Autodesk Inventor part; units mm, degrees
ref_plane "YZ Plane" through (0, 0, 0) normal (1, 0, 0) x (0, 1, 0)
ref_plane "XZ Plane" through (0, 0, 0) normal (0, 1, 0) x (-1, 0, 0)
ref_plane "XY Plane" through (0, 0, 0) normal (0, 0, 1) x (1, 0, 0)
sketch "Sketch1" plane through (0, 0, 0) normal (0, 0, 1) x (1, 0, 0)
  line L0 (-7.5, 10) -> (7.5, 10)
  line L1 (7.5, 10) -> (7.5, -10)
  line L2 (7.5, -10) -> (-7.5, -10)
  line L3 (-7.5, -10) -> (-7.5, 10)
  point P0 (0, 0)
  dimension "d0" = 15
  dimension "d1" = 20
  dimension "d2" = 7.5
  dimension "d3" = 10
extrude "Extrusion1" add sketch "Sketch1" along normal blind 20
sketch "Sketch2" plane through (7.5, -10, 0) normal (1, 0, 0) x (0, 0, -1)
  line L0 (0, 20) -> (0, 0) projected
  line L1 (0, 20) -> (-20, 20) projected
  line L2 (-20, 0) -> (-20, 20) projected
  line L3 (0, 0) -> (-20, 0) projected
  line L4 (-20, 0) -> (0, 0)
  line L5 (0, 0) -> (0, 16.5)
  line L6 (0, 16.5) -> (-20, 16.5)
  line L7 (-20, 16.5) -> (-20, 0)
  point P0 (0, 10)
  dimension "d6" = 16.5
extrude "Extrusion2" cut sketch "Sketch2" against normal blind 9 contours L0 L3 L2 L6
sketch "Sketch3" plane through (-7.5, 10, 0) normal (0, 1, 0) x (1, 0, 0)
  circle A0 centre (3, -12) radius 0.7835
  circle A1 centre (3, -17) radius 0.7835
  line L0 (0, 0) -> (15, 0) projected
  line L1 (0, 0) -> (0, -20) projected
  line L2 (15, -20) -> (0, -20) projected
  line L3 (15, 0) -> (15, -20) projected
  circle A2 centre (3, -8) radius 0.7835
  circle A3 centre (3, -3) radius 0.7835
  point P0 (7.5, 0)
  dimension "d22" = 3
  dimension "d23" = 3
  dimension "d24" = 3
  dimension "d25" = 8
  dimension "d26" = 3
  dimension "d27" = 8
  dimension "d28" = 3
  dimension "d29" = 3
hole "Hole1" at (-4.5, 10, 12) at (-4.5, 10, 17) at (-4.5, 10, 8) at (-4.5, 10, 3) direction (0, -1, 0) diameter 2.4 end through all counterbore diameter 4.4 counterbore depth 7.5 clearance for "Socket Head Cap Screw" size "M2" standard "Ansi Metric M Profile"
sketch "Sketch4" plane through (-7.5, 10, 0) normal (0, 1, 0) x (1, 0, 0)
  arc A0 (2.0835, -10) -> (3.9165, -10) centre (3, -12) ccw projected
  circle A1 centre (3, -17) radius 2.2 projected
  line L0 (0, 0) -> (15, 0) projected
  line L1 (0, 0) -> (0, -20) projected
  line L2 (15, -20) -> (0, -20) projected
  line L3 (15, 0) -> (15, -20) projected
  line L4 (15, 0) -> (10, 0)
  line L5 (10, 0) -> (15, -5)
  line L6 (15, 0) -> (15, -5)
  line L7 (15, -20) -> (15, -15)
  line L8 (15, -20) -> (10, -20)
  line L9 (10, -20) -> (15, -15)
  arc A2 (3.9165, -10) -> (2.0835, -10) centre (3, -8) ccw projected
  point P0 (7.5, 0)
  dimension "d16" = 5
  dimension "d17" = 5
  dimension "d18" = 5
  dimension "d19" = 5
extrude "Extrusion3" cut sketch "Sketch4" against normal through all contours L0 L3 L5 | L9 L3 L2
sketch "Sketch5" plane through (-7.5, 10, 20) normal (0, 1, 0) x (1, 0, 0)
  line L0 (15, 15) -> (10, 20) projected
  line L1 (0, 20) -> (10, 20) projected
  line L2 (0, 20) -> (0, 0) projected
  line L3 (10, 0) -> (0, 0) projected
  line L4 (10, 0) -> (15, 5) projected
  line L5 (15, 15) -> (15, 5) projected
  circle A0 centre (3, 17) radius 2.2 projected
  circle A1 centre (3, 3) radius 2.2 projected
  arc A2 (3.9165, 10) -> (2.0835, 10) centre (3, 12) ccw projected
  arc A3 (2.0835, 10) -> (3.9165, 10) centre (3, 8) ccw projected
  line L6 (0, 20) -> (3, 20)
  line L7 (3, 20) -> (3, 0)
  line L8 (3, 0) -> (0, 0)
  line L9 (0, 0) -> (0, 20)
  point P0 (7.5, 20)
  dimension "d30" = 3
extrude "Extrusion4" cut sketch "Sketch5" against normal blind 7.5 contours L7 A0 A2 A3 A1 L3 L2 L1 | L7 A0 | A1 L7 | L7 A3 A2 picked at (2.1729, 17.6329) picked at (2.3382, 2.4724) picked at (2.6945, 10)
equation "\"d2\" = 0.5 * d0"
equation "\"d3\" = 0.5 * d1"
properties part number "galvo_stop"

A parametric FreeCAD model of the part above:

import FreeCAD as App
import Part
import Sketcher
from FreeCAD import Vector

doc = App.newDocument("Part")
body = doc.addObject("PartDesign::Body", "Body")

# Sketch on XY plane
sketch1 = body.newObject("Sketcher::SketchObject", "Sketch")
sketch1.AttachmentSupport = (doc.getObject("XY_Plane"), [""])
sketch1.MapMode = "FlatFace"
sketch1.addGeometry([
    Part.LineSegment(Vector(8, 10, 0), Vector(-8, 10, 0)),
    Part.LineSegment(Vector(-8, 10, 0), Vector(-8, -10, 0)),
    Part.LineSegment(Vector(-8, -10, 0), Vector(8, -10, 0)),
    Part.LineSegment(Vector(8, -10, 0), Vector(8, 10, 0)),
], False)
sketch1.addConstraint([
    Sketcher.Constraint("Coincident", 0, 2, 1, 1),
    Sketcher.Constraint("Coincident", 1, 2, 2, 1),
    Sketcher.Constraint("Coincident", 2, 2, 3, 1),
    Sketcher.Constraint("Coincident", 3, 2, 0, 1),
    Sketcher.Constraint("Horizontal", 0),
    Sketcher.Constraint("Vertical", 1),
    Sketcher.Constraint("Horizontal", 2),
    Sketcher.Constraint("Vertical", 3),
    Sketcher.Constraint("Symmetric", 0, 2, 2, 2, -1, 1),
    Sketcher.Constraint("DistanceX", 0, 2, 0, 1, 15.0),
    Sketcher.Constraint("DistanceY", 1, 2, 1, 1, 20.0),
])
pad1 = body.newObject("PartDesign::Pad", "Pad")
pad1.Profile = sketch1
pad1.Length = 20

# Sketch on YZ plane
sketch2 = body.newObject("Sketcher::SketchObject", "Sketch001")
sketch2.AttachmentSupport = (doc.getObject("YZ_Plane"), [""])
sketch2.MapMode = "FlatFace"
sketch2.AttachmentOffset = App.Placement(Vector(0, 0, 7.5), App.Rotation())
sketch2.addGeometry([
    Part.LineSegment(Vector(-10, 0, 0), Vector(6, 0, 0)),
    Part.LineSegment(Vector(6, 0, 0), Vector(6, 20, 0)),
    Part.LineSegment(Vector(6, 20, 0), Vector(-10, 20, 0)),
    Part.LineSegment(Vector(-10, 20, 0), Vector(-10, 0, 0)),
], False)
sketch2.addConstraint([
    Sketcher.Constraint("Coincident", 0, 2, 1, 1),
    Sketcher.Constraint("Coincident", 1, 2, 2, 1),
    Sketcher.Constraint("Coincident", 2, 2, 3, 1),
    Sketcher.Constraint("Coincident", 3, 2, 0, 1),
    Sketcher.Constraint("Horizontal", 0),
    Sketcher.Constraint("Vertical", 1),
    Sketcher.Constraint("Horizontal", 2),
    Sketcher.Constraint("Vertical", 3),
    Sketcher.Constraint("PointOnObject", 0, 2, -1),
    Sketcher.Constraint("DistanceX", 0, 1, 0, 2, 16.5),
    Sketcher.Constraint("DistanceY", 1, 1, 1, 2, 20.0),
    Sketcher.Constraint("DistanceX", 2, 2, -1, 1, 10.0),
])
pocket1 = body.newObject("PartDesign::Pocket", "Pocket")
pocket1.Profile = sketch2
pocket1.Length = 9

# Sketch on XZ plane
sketch3 = body.newObject("Sketcher::SketchObject", "Sketch002")
sketch3.AttachmentSupport = (doc.getObject("XZ_Plane"), [""])
sketch3.MapMode = "FlatFace"
sketch3.AttachmentOffset = App.Placement(Vector(0, 0, -10), App.Rotation())
sketch3.addGeometry([
    Part.Circle(Vector(-4.5, 12, 0), Vector(0, 0, 1), 1.2),
    Part.Circle(Vector(-4.5, 17, 0), Vector(0, 0, 1), 1.2),
    Part.Circle(Vector(-4.5, 8, 0), Vector(0, 0, 1), 1.2),
    Part.Circle(Vector(-4.5, 3, 0), Vector(0, 0, 1), 1.2),
], False)
sketch3.addConstraint([
    Sketcher.Constraint("Equal", 0, 1),
    Sketcher.Constraint("Equal", 1, 2),
    Sketcher.Constraint("Equal", 2, 3),
    Sketcher.Constraint("Vertical", 0, 3, 1, 3),
    Sketcher.Constraint("Vertical", 1, 3, 2, 3),
    Sketcher.Constraint("Vertical", 2, 3, 3, 3),
    Sketcher.Constraint("Diameter", 0, 2.4),
    Sketcher.Constraint("DistanceY", -1, 1, 0, 3, 12.0),
    Sketcher.Constraint("DistanceY", -1, 1, 1, 3, 17.0),
    Sketcher.Constraint("DistanceY", -1, 1, 2, 3, 8.0),
    Sketcher.Constraint("DistanceY", -1, 1, 3, 3, 3.0),
    Sketcher.Constraint("DistanceX", 0, 3, -1, 1, 4.5),
])
doc.recompute()
hole = body.newObject("PartDesign::Hole", "Hole")
hole.Profile = sketch3
hole.ThreadType = "None"
hole.Diameter = 2.4
hole.DepthType = "ThroughAll"
hole.HoleCutType = "Counterbore"
hole.HoleCutDiameter = 4.4
hole.HoleCutDepth = 7.5
hole.Reversed = True

# Sketch on XZ plane
sketch4 = body.newObject("Sketcher::SketchObject", "Sketch003")
sketch4.AttachmentSupport = (doc.getObject("XZ_Plane"), [""])
sketch4.MapMode = "FlatFace"
sketch4.AttachmentOffset = App.Placement(Vector(0, 0, -10), App.Rotation())
sketch4.addGeometry([
    Part.LineSegment(Vector(8, 0, 0), Vector(2, 0, 0)),  # 0
    Part.LineSegment(Vector(2, 0, 0), Vector(8, 5, 0)),  # 1
    Part.LineSegment(Vector(8, 5, 0), Vector(8, 0, 0)),  # 2
    Part.LineSegment(Vector(8, 15, 0), Vector(2, 20, 0)),  # 3
    Part.LineSegment(Vector(2, 20, 0), Vector(8, 20, 0)),  # 4
    Part.LineSegment(Vector(8, 20, 0), Vector(8, 15, 0)),  # 5
], False)
sketch4.addConstraint([
    Sketcher.Constraint("Coincident", 0, 2, 1, 1),
    Sketcher.Constraint("Coincident", 1, 2, 2, 1),
    Sketcher.Constraint("Coincident", 2, 2, 0, 1),
    Sketcher.Constraint("Coincident", 3, 2, 4, 1),
    Sketcher.Constraint("Coincident", 4, 2, 5, 1),
    Sketcher.Constraint("Coincident", 5, 2, 3, 1),
    Sketcher.Constraint("Horizontal", 0),
    Sketcher.Constraint("Vertical", 2),
    Sketcher.Constraint("Horizontal", 4),
    Sketcher.Constraint("Vertical", 5),
    Sketcher.Constraint("PointOnObject", 0, 2, -1),
    Sketcher.Constraint("Perpendicular", 1, 3),
    Sketcher.Constraint("Vertical", 0, 2, 3, 2),
    Sketcher.Constraint("Vertical", 2, 2, 4, 2),
    Sketcher.Constraint("Equal", 4, 2),
    Sketcher.Constraint("DistanceX", 0, 2, 0, 1, 5.0),
    Sketcher.Constraint("DistanceY", -1, 1, 3, 2, 20.0),
    Sketcher.Constraint("DistanceX", -1, 1, 0, 2, 2.5),
])
pocket2 = body.newObject("PartDesign::Pocket", "Pocket001")
pocket2.Profile = sketch4
pocket2.Type = "ThroughAll"
pocket2.Reversed = True

# Sketch on XZ plane
sketch5 = body.newObject("Sketcher::SketchObject", "Sketch004")
sketch5.AttachmentSupport = (doc.getObject("XZ_Plane"), [""])
sketch5.MapMode = "FlatFace"
sketch5.AttachmentOffset = App.Placement(Vector(0, 0, -10), App.Rotation())
sketch5.addGeometry([
    Part.LineSegment(Vector(-4.5, 0, 0), Vector(-7.5, 0, 0)),
    Part.LineSegment(Vector(-7.5, 0, 0), Vector(-7.5, 20, 0)),
    Part.LineSegment(Vector(-7.5, 20, 0), Vector(-4.5, 20, 0)),
    Part.LineSegment(Vector(-4.5, 20, 0), Vector(-4.5, 0, 0)),
], False)
sketch5.addConstraint([
    Sketcher.Constraint("Coincident", 0, 2, 1, 1),
    Sketcher.Constraint("Coincident", 1, 2, 2, 1),
    Sketcher.Constraint("Coincident", 2, 2, 3, 1),
    Sketcher.Constraint("Coincident", 3, 2, 0, 1),
    Sketcher.Constraint("Horizontal", 0),
    Sketcher.Constraint("Vertical", 1),
    Sketcher.Constraint("Horizontal", 2),
    Sketcher.Constraint("Vertical", 3),
    Sketcher.Constraint("PointOnObject", 0, 2, -1),
    Sketcher.Constraint("DistanceX", 0, 2, 0, 1, 3.0),
    Sketcher.Constraint("DistanceY", 1, 1, 1, 2, 20.0),
    Sketcher.Constraint("DistanceX", 0, 2, -1, 1, 7.5),
])
pocket3 = body.newObject("PartDesign::Pocket", "Pocket002")
pocket3.Profile = sketch5
pocket3.Length = 7.5
pocket3.Reversed = True

doc.recompute()
